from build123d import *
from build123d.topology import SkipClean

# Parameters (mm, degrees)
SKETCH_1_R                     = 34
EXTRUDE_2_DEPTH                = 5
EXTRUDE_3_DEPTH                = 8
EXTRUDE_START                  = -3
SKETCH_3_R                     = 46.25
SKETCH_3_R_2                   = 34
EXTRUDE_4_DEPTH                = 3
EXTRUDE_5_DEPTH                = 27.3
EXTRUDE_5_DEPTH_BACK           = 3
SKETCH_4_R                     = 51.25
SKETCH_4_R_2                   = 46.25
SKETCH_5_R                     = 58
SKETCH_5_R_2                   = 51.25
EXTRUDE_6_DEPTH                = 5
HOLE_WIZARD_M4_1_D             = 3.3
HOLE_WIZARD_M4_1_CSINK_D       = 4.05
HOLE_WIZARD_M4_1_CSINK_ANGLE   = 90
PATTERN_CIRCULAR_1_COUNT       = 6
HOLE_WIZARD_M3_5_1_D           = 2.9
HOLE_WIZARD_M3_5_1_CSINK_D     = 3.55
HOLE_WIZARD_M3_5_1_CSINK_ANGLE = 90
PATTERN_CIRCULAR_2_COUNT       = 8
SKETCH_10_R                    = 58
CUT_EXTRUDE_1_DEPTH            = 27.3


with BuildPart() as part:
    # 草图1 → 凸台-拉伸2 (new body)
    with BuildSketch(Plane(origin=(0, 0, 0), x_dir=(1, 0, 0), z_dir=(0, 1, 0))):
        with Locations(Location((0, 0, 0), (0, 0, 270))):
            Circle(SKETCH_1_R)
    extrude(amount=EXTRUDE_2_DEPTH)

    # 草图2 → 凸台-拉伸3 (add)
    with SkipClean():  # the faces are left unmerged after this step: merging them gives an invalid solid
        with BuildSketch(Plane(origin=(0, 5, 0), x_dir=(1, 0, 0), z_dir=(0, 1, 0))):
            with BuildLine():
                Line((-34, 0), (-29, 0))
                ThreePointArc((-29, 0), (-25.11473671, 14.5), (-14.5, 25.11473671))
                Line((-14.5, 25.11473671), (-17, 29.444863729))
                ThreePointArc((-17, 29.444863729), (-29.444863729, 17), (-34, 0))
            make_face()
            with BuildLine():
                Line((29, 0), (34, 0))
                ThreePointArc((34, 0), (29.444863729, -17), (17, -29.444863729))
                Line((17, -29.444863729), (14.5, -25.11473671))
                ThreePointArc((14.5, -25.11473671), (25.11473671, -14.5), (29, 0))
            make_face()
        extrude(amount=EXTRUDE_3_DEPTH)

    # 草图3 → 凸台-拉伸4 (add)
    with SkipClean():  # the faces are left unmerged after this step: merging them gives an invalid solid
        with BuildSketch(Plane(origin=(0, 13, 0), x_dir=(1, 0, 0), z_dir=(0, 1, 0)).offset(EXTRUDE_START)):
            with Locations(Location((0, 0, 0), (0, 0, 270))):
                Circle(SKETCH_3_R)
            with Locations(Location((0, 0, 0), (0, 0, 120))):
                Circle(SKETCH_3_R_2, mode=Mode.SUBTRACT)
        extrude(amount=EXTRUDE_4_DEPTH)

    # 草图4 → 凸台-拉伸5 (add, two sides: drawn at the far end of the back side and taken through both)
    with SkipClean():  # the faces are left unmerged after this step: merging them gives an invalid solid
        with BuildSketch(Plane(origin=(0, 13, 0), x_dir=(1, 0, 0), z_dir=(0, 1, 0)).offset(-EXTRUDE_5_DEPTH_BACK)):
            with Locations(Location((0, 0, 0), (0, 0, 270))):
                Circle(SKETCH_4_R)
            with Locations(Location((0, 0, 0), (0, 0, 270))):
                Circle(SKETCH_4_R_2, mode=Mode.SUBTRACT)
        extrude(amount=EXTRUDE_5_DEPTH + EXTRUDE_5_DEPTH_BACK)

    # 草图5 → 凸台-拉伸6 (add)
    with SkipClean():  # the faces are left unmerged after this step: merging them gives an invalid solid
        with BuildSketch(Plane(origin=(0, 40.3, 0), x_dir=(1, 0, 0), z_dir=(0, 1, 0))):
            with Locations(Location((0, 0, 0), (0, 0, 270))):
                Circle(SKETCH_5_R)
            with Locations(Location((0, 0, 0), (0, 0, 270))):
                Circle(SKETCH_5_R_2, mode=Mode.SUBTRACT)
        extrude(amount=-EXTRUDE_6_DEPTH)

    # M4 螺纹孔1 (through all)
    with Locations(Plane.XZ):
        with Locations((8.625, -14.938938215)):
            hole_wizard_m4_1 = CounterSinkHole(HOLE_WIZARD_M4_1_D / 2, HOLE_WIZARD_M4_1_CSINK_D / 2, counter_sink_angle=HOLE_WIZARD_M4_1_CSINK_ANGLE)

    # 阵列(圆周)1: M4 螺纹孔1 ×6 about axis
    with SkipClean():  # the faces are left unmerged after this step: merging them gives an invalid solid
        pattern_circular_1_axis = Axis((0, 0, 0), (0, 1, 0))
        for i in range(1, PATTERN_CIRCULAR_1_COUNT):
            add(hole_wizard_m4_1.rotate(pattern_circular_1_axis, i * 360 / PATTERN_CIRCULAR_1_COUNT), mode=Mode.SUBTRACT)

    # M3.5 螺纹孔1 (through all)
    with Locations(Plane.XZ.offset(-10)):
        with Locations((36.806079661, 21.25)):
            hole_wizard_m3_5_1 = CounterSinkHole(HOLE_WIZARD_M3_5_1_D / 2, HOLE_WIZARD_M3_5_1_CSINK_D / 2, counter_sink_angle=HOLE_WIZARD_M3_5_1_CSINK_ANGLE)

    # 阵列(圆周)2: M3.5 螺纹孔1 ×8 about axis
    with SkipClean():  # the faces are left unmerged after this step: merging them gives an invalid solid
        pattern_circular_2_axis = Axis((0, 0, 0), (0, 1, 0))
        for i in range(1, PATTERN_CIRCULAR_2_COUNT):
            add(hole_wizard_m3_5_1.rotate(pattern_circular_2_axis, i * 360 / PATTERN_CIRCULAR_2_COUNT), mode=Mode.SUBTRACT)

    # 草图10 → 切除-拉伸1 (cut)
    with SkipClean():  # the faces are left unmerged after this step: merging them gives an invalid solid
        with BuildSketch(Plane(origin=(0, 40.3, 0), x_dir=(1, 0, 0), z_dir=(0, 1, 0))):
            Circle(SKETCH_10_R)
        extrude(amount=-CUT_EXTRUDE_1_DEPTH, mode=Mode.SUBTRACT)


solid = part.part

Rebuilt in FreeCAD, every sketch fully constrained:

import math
import FreeCAD as App
import Part
import Sketcher
Q = App.Units.Quantity

doc = App.newDocument("Part")
body = doc.addObject("PartDesign::Body", "Body")

# Sketch on XZ plane
sketch1 = doc.addObject("Sketcher::SketchObject", "Sketch")
body.addObject(sketch1)
sketch1.AttachmentSupport = (doc.XZ_Plane, [""])
sketch1.MapMode = "FlatFace"
sketch1.addGeometry(Part.Circle(App.Vector(0, 0, 0), App.Vector(0, 0, 1), 34), False)
sketch1.addConstraint([
    Sketcher.Constraint("Coincident", 0, 3, -1, 1),
    Sketcher.Constraint("Diameter", 0, Q("68 mm")),
])
pad1 = doc.addObject("PartDesign::Pad", "Pad")
body.addObject(pad1)
pad1.Profile = sketch1
pad1.Length = 5
pad1.Reversed = True

# Sketch on XZ plane
sketch2 = doc.addObject("Sketcher::SketchObject", "Sketch001")
body.addObject(sketch2)
sketch2.AttachmentSupport = (doc.XZ_Plane, [""])
sketch2.MapMode = "FlatFace"
sketch2.AttachmentOffset = App.Placement(App.Vector(0, 0, -5), App.Rotation())
sketch2.addGeometry([
    Part.LineSegment(App.Vector(-34, 0, 0), App.Vector(-29, 0, 0)),  # 0
    Part.ArcOfCircle(Part.Circle(App.Vector(0, 0, 0), App.Vector(0, 0, 1), 29), math.radians(180), math.radians(240)),  # 1
    Part.LineSegment(App.Vector(-14, -25, 0), App.Vector(-17, -29, 0)),  # 2
    Part.ArcOfCircle(Part.Circle(App.Vector(0, 0, 0), App.Vector(0, 0, 1), 34), math.radians(180), math.radians(240)),  # 3
    Part.LineSegment(App.Vector(34, 0, 0), App.Vector(29, 0, 0)),  # 4
    Part.ArcOfCircle(Part.Circle(App.Vector(0, 0, 0), App.Vector(0, 0, 1), 29), math.radians(0), math.radians(60)),  # 5
    Part.LineSegment(App.Vector(14, 25, 0), App.Vector(17, 29, 0)),  # 6
    Part.ArcOfCircle(Part.Circle(App.Vector(0, 0, 0), App.Vector(0, 0, 1), 34), math.radians(0), math.radians(60)),  # 7
], False)
sketch2.addConstraint([
    Sketcher.Constraint("Coincident", 0, 2, 1, 1),
    Sketcher.Constraint("Coincident", 1, 2, 2, 1),
    Sketcher.Constraint("Coincident", 2, 2, 3, 2),
    Sketcher.Constraint("Coincident", 3, 1, 0, 1),
    Sketcher.Constraint("Coincident", 4, 2, 5, 1),
    Sketcher.Constraint("Coincident", 5, 2, 6, 1),
    Sketcher.Constraint("Coincident", 6, 2, 7, 2),
    Sketcher.Constraint("Coincident", 7, 1, 4, 1),
    Sketcher.Constraint("Horizontal", 0),
    Sketcher.Constraint("Horizontal", 4),
    Sketcher.Constraint("Coincident", 1, 3, -1, 1),
    Sketcher.Constraint("Coincident", 3, 3, -1, 1),
    Sketcher.Constraint("Coincident", 5, 3, -1, 1),
    Sketcher.Constraint("Coincident", 7, 3, -1, 1),
    Sketcher.Constraint("Equal", 1, 5),
    Sketcher.Constraint("Equal", 3, 7),
    Sketcher.Constraint("PointOnObject", 0, 2, -1),
    Sketcher.Constraint("PointOnObject", 4, 2, -1),
    Sketcher.Constraint("Parallel", 2, 6),
    Sketcher.Constraint("Radius", 1, Q("29 mm")),
    Sketcher.Constraint("Radius", 3, Q("34 mm")),
    Sketcher.Constraint("Angle", 2, Q("-120 deg")),
    Sketcher.Constraint("DistanceX", 2, 2, -1, 1, Q("17 mm")),
    Sketcher.Constraint("DistanceX", -1, 1, 6, 2, Q("17 mm")),
])
pad2 = doc.addObject("PartDesign::Pad", "Pad001")
body.addObject(pad2)
pad2.Profile = sketch2
pad2.Length = 8
pad2.Reversed = True

# Sketch on XZ plane
sketch3 = doc.addObject("Sketcher::SketchObject", "Sketch002")
body.addObject(sketch3)
sketch3.AttachmentSupport = (doc.XZ_Plane, [""])
sketch3.MapMode = "FlatFace"
sketch3.AttachmentOffset = App.Placement(App.Vector(0, 0, -10), App.Rotation())
sketch3.addGeometry([
    Part.Circle(App.Vector(0, 0, 0), App.Vector(0, 0, 1), 46),
    Part.Circle(App.Vector(0, 0, 0), App.Vector(0, 0, 1), 34),
], False)
sketch3.addConstraint([
    Sketcher.Constraint("Coincident", 0, 3, -1, 1),
    Sketcher.Constraint("Coincident", 1, 3, -1, 1),
    Sketcher.Constraint("Diameter", 1, Q("68 mm")),
    Sketcher.Constraint("Diameter", 0, Q("92.5 mm")),
])
pad3 = doc.addObject("PartDesign::Pad", "Pad002")
body.addObject(pad3)
pad3.Profile = sketch3
pad3.Length = 3
pad3.Reversed = True

# Sketch on XZ plane
sketch4 = doc.addObject("Sketcher::SketchObject", "Sketch003")
body.addObject(sketch4)
sketch4.AttachmentSupport = (doc.XZ_Plane, [""])
sketch4.MapMode = "FlatFace"
sketch4.AttachmentOffset = App.Placement(App.Vector(0, 0, -13), App.Rotation())
sketch4.addGeometry([
    Part.Circle(App.Vector(0, 0, 0), App.Vector(0, 0, 1), 51),
    Part.Circle(App.Vector(0, 0, 0), App.Vector(0, 0, 1), 46),
], False)
sketch4.addConstraint([
    Sketcher.Constraint("Coincident", 0, 3, -1, 1),
    Sketcher.Constraint("Coincident", 1, 3, -1, 1),
    Sketcher.Constraint("Diameter", 0, Q("102.5 mm")),
    Sketcher.Constraint("Diameter", 1, Q("92.5 mm")),
])
pad4 = doc.addObject("PartDesign::Pad", "Pad003")
body.addObject(pad4)
pad4.Profile = sketch4
pad4.Type = "TwoLengths"
pad4.Length = 27.3
pad4.Length2 = 3
pad4.Reversed = True

# Sketch on XZ plane
sketch5 = doc.addObject("Sketcher::SketchObject", "Sketch004")
body.addObject(sketch5)
sketch5.AttachmentSupport = (doc.XZ_Plane, [""])
sketch5.MapMode = "FlatFace"
sketch5.AttachmentOffset = App.Placement(App.Vector(0, 0, -40.3), App.Rotation())
sketch5.addGeometry([
    Part.Circle(App.Vector(0, 0, 0), App.Vector(0, 0, 1), 58),
    Part.Circle(App.Vector(0, 0, 0), App.Vector(0, 0, 1), 51),
], False)
sketch5.addConstraint([
    Sketcher.Constraint("Coincident", 0, 3, -1, 1),
    Sketcher.Constraint("Coincident", 1, 3, -1, 1),
    Sketcher.Constraint("Diameter", 0, Q("116 mm")),
    Sketcher.Constraint("Diameter", 1, Q("102.5 mm")),
])
pad5 = doc.addObject("PartDesign::Pad", "Pad004")
body.addObject(pad5)
pad5.Profile = sketch5
pad5.Length = 5

# Sketch on XZ plane
sketch6 = doc.addObject("Sketcher::SketchObject", "Sketch005")
body.addObject(sketch6)
sketch6.AttachmentSupport = (doc.XZ_Plane, [""])
sketch6.MapMode = "FlatFace"
sketch6.addGeometry(Part.Circle(App.Vector(8.6, -14.9, 0), App.Vector(0, 0, 1), 1.6), False)
sketch6.addConstraint([
    Sketcher.Constraint("Diameter", 0, Q("3.3 mm")),
    Sketcher.Constraint("DistanceX", -1, 1, 0, 3, Q("8.625 mm")),
    Sketcher.Constraint("DistanceY", 0, 3, -1, 1, Q("14.938938 mm")),
])
doc.recompute()
hole = doc.addObject("PartDesign::Hole", "Hole")
body.addObject(hole)
hole.Profile = sketch6
hole.ThreadType = "None"
hole.Diameter = 3.3
hole.DepthType = "ThroughAll"
hole.HoleCutType = "Countersink"
hole.HoleCutDiameter = 4.05
hole.HoleCutCountersinkAngle = 90
doc.recompute()

polarpattern = doc.addObject("PartDesign::PolarPattern", "PolarPattern")
body.addObject(polarpattern)
polarpattern.Originals = [hole]
polarpattern.Axis = (doc.Y_Axis, [""])
polarpattern.Angle = 360
polarpattern.Occurrences = 6
body.Tip = polarpattern

# Sketch on XZ plane
sketch7 = doc.addObject("Sketcher::SketchObject", "Sketch006")
body.addObject(sketch7)
sketch7.AttachmentSupport = (doc.XZ_Plane, [""])
sketch7.MapMode = "FlatFace"
sketch7.AttachmentOffset = App.Placement(App.Vector(0, 0, -10), App.Rotation())
sketch7.addGeometry(Part.Circle(App.Vector(36.8, 21.2, 0), App.Vector(0, 0, 1), 1.4), False)
sketch7.addConstraint([
    Sketcher.Constraint("Diameter", 0, Q("2.9 mm")),
    Sketcher.Constraint("DistanceY", -1, 1, 0, 3, Q("21.25 mm")),
    Sketcher.Constraint("DistanceX", -1, 1, 0, 3, Q("36.80608 mm")),
])
doc.recompute()
hole2 = doc.addObject("PartDesign::Hole", "Hole001")
body.addObject(hole2)
hole2.Profile = sketch7
hole2.ThreadType = "None"
hole2.Diameter = 2.9
hole2.DepthType = "ThroughAll"
hole2.HoleCutType = "Countersink"
hole2.HoleCutDiameter = 3.55
hole2.HoleCutCountersinkAngle = 90
doc.recompute()

polarpattern2 = doc.addObject("PartDesign::PolarPattern", "PolarPattern001")
body.addObject(polarpattern2)
polarpattern2.Originals = [hole2]
polarpattern2.Axis = (doc.Y_Axis, [""])
polarpattern2.Angle = 360
polarpattern2.Occurrences = 8
body.Tip = polarpattern2

# Sketch on XZ plane
sketch8 = doc.addObject("Sketcher::SketchObject", "Sketch007")
body.addObject(sketch8)
sketch8.AttachmentSupport = (doc.XZ_Plane, [""])
sketch8.MapMode = "FlatFace"
sketch8.AttachmentOffset = App.Placement(App.Vector(0, 0, -40.3), App.Rotation())
sketch8.addGeometry(Part.Circle(App.Vector(0, 0, 0), App.Vector(0, 0, 1), 58), False)
sketch8.addConstraint([
    Sketcher.Constraint("Coincident", 0, 3, -1, 1),
    Sketcher.Constraint("Diameter", 0, Q("116 mm")),
])
pocket1 = doc.addObject("PartDesign::Pocket", "Pocket")
body.addObject(pocket1)
pocket1.Profile = sketch8
pocket1.Length = 27.3
pocket1.Reversed = True

doc.recompute()
